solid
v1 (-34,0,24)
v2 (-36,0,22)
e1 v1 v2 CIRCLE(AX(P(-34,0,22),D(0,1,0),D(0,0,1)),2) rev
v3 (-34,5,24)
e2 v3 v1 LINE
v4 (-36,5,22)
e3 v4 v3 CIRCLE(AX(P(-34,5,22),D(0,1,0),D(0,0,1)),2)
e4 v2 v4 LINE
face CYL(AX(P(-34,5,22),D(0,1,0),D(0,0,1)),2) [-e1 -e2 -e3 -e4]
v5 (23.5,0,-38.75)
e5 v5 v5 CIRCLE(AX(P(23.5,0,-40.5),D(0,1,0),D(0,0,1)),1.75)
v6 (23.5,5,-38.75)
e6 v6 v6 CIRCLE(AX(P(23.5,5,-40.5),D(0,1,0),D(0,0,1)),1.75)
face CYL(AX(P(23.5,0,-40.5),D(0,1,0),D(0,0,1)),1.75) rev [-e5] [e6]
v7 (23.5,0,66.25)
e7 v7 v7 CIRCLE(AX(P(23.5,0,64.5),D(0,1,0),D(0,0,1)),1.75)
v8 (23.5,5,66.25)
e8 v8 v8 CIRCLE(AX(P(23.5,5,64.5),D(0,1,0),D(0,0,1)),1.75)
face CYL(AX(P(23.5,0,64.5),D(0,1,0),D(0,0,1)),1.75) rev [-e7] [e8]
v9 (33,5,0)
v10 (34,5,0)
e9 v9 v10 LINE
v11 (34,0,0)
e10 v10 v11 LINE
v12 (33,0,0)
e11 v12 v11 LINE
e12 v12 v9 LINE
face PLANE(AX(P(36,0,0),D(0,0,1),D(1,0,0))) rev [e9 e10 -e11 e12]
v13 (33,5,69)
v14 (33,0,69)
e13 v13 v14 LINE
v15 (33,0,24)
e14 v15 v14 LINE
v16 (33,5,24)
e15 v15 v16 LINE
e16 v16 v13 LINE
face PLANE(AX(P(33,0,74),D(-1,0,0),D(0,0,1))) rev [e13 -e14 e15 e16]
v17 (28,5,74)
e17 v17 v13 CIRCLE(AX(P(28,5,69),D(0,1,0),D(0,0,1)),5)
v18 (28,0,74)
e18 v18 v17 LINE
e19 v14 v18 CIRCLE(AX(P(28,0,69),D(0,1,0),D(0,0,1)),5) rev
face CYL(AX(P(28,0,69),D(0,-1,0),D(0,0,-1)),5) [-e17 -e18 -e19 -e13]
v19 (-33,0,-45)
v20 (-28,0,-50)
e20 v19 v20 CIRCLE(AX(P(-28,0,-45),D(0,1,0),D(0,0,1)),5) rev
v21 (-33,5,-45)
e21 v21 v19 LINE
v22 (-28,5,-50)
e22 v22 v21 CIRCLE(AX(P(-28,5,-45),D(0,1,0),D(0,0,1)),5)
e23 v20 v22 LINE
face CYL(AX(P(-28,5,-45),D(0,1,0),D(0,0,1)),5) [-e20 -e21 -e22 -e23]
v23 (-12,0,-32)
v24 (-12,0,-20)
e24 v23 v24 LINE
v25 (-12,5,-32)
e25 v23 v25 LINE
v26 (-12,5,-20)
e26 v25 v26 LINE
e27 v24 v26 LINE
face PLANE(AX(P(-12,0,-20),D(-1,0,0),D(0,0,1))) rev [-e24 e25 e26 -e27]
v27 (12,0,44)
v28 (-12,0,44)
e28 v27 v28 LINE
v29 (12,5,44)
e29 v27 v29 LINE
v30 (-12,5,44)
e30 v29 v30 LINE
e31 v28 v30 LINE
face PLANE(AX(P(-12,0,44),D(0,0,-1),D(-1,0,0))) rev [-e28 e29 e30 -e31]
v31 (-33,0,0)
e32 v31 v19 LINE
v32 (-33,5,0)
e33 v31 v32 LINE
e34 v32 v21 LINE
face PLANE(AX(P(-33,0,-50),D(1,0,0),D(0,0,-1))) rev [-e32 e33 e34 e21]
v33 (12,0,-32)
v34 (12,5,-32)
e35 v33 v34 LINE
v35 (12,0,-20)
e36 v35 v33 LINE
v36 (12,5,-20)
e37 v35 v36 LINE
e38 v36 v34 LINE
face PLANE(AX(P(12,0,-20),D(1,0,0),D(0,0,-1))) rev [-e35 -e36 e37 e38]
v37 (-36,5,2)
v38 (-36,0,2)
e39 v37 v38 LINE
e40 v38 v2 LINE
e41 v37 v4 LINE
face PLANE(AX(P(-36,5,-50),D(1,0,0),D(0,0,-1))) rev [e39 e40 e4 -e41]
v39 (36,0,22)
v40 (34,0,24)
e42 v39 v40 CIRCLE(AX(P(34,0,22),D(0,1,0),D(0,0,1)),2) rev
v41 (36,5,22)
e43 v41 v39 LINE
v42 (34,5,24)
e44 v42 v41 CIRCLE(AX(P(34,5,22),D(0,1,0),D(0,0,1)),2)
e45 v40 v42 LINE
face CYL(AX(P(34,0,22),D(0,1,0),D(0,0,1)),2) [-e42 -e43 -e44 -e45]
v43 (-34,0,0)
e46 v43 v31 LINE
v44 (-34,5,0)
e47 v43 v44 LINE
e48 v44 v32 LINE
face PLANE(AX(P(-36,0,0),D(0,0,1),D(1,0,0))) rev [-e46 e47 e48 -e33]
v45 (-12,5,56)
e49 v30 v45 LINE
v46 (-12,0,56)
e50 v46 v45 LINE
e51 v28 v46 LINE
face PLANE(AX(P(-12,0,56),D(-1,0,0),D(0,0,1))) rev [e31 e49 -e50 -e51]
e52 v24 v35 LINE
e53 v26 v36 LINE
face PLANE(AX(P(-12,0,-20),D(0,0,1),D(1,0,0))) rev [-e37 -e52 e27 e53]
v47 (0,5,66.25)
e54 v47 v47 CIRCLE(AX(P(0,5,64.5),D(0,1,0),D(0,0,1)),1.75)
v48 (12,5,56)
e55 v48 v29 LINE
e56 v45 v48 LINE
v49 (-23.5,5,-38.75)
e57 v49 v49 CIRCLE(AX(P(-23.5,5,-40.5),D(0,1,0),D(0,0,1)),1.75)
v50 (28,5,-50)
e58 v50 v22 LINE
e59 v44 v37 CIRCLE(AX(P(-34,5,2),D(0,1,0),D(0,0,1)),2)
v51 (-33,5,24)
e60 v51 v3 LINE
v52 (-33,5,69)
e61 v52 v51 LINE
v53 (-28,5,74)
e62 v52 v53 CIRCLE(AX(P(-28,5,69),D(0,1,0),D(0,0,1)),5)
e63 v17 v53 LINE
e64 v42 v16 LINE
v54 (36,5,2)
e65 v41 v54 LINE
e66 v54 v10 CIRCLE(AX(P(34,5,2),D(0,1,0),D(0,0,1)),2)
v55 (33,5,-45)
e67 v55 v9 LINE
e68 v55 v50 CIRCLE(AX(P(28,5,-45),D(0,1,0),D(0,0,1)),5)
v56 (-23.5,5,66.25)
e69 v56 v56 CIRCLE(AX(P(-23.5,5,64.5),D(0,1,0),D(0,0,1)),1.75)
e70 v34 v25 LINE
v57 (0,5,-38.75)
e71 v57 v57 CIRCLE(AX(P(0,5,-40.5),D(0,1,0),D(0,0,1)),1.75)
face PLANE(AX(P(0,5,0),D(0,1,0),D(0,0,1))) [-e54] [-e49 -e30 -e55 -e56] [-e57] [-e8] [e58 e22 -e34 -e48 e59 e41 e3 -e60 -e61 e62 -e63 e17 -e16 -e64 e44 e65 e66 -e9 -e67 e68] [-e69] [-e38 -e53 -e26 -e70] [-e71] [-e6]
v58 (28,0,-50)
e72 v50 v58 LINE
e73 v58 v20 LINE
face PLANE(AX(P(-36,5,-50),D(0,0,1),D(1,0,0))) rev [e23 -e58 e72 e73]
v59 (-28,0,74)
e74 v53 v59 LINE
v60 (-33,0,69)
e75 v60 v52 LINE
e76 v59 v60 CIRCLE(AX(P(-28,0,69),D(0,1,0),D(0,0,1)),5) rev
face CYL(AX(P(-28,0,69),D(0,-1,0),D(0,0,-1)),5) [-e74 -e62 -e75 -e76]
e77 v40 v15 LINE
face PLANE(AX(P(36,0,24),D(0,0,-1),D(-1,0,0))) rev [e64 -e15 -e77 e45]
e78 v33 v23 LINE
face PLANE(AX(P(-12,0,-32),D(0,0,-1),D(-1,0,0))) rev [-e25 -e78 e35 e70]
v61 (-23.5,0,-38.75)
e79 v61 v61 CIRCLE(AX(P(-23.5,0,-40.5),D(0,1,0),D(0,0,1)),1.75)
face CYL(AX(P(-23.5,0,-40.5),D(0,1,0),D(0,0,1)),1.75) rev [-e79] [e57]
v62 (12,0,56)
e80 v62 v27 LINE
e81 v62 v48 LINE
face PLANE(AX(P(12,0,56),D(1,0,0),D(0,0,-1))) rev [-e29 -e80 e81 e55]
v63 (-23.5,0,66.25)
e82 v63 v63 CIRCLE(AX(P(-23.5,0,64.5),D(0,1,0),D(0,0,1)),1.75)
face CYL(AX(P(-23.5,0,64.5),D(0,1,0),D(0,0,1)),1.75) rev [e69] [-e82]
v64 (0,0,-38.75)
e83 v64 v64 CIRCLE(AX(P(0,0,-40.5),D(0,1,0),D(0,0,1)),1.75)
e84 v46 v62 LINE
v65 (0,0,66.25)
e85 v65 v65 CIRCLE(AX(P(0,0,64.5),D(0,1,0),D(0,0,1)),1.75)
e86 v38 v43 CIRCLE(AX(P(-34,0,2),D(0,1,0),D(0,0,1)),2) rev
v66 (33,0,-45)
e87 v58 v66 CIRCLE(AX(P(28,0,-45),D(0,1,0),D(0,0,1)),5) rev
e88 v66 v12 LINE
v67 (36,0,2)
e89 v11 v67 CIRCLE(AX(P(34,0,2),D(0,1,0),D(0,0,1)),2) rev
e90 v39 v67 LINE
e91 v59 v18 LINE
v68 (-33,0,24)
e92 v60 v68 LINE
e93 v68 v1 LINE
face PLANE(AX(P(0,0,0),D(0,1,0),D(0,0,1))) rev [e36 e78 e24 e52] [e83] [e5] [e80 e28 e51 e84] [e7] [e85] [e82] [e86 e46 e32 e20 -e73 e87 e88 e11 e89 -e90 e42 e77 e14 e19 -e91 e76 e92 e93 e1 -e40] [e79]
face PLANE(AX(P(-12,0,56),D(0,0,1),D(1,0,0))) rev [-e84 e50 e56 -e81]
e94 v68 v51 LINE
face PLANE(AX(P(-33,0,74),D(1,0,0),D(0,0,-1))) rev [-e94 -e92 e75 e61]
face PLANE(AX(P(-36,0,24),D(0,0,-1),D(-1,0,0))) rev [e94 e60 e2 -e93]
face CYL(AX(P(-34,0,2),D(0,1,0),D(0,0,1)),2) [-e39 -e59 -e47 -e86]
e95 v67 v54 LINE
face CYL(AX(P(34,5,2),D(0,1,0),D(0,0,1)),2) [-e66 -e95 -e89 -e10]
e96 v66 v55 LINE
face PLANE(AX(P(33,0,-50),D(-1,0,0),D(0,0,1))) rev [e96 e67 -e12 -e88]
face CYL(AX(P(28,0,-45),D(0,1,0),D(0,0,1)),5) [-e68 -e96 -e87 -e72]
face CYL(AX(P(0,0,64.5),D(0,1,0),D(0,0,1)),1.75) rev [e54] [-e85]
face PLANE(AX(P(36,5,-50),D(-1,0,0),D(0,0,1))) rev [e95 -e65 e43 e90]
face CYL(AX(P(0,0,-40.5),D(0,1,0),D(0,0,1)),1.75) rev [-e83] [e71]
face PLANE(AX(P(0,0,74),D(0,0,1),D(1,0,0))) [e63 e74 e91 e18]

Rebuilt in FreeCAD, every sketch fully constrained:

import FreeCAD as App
import Part
import Sketcher
from FreeCAD import Vector


def edges_at(feature, points):
    """Names of the edges that pass closest to the given points."""
    edges = feature.Shape.Edges
    near = lambda p: min(range(len(edges)), key=lambda i: edges[i].distToShape(Part.Vertex(*p))[0])
    return sorted({f"Edge{near(p) + 1}" for p in points})

doc = App.newDocument("Part")
body = doc.addObject("PartDesign::Body", "Body")

# Sketch on XZ plane
sketch1 = body.newObject("Sketcher::SketchObject", "Sketch")
sketch1.AttachmentSupport = (doc.getObject("XZ_Plane"), [""])
sketch1.MapMode = "FlatFace"
sketch1.addGeometry([
    Part.LineSegment(Vector(-36, -50, 0), Vector(-36, 50, 0)),
    Part.LineSegment(Vector(-36, 50, 0), Vector(36, 50, 0)),
    Part.LineSegment(Vector(36, 50, 0), Vector(36, -50, 0)),
    Part.LineSegment(Vector(36, -50, 0), Vector(-36, -50, 0)),
], False)
sketch1.addConstraint([
    Sketcher.Constraint("Coincident", 0, 2, 1, 1),
    Sketcher.Constraint("Coincident", 1, 2, 2, 1),
    Sketcher.Constraint("Coincident", 2, 2, 3, 1),
    Sketcher.Constraint("Coincident", 3, 2, 0, 1),
    Sketcher.Constraint("Vertical", 0),
    Sketcher.Constraint("Horizontal", 1),
    Sketcher.Constraint("Vertical", 2),
    Sketcher.Constraint("Horizontal", 3),
    Sketcher.Constraint("Symmetric", 0, 2, 2, 2, -1, 1),
    Sketcher.Constraint("DistanceX", 1, 1, 1, 2, 72.0),
    Sketcher.Constraint("DistanceY", 0, 1, 0, 2, 100.0),
])
pad1 = body.newObject("PartDesign::Pad", "Pad")
pad1.Profile = sketch1
pad1.Length = 5
pad1.Reversed = True

# Sketch on XY plane
sketch2 = body.newObject("Sketcher::SketchObject", "Sketch001")
sketch2.AttachmentSupport = (doc.getObject("XY_Plane"), [""])
sketch2.MapMode = "FlatFace"
sketch2.AttachmentOffset = App.Placement(Vector(0, 0, 50), App.Rotation())
sketch2.addGeometry([
    Part.LineSegment(Vector(-36, 5, 0), Vector(-36, 0, 0)),
    Part.LineSegment(Vector(-36, 0, 0), Vector(36, 0, 0)),
    Part.LineSegment(Vector(36, 0, 0), Vector(36, 5, 0)),
    Part.LineSegment(Vector(36, 5, 0), Vector(-36, 5, 0)),
], False)
sketch2.addConstraint([
    Sketcher.Constraint("Coincident", 0, 2, 1, 1),
    Sketcher.Constraint("Coincident", 1, 2, 2, 1),
    Sketcher.Constraint("Coincident", 2, 2, 3, 1),
    Sketcher.Constraint("Coincident", 3, 2, 0, 1),
    Sketcher.Constraint("Vertical", 0),
    Sketcher.Constraint("Horizontal", 1),
    Sketcher.Constraint("Vertical", 2),
    Sketcher.Constraint("Horizontal", 3),
    Sketcher.Constraint("Symmetric", 0, 2, 1, 2, -1, 1),
    Sketcher.Constraint("DistanceX", 1, 1, 1, 2, 72.0),
    Sketcher.Constraint("DistanceY", 0, 2, 0, 1, 5.0),
])
pad2 = body.newObject("PartDesign::Pad", "Pad001")
pad2.Profile = sketch2
pad2.Length = 24

# Sketch on XZ plane
sketch3 = body.newObject("Sketcher::SketchObject", "Sketch002")
sketch3.AttachmentSupport = (doc.getObject("XZ_Plane"), [""])
sketch3.MapMode = "FlatFace"
sketch3.AttachmentOffset = App.Placement(Vector(0, 0, -5), App.Rotation())
sketch3.addGeometry([
    Part.LineSegment(Vector(-36, -50, 0), Vector(-36, 0, 0)),  # 0
    Part.LineSegment(Vector(-36, 0, 0), Vector(-33, 0, 0)),  # 1
    Part.LineSegment(Vector(-33, 0, 0), Vector(-33, -50, 0)),  # 2
    Part.LineSegment(Vector(-33, -50, 0), Vector(-36, -50, 0)),  # 3
    Part.LineSegment(Vector(33, -50, 0), Vector(33, 0, 0)),  # 4
    Part.LineSegment(Vector(33, 0, 0), Vector(36, 0, 0)),  # 5
    Part.LineSegment(Vector(36, 0, 0), Vector(36, -50, 0)),  # 6
    Part.LineSegment(Vector(36, -50, 0), Vector(33, -50, 0)),  # 7
    Part.LineSegment(Vector(-36, 24, 0), Vector(-36, 74, 0)),  # 8
    Part.LineSegment(Vector(-36, 74, 0), Vector(-33, 74, 0)),  # 9
    Part.LineSegment(Vector(-33, 74, 0), Vector(-33, 24, 0)),  # 10
    Part.LineSegment(Vector(-33, 24, 0), Vector(-36, 24, 0)),  # 11
    Part.LineSegment(Vector(33, 24, 0), Vector(33, 74, 0)),  # 12
    Part.LineSegment(Vector(33, 74, 0), Vector(36, 74, 0)),  # 13
    Part.LineSegment(Vector(36, 74, 0), Vector(36, 24, 0)),  # 14
    Part.LineSegment(Vector(36, 24, 0), Vector(33, 24, 0)),  # 15
], False)
sketch3.addConstraint([
    Sketcher.Constraint("Coincident", 0, 2, 1, 1),
    Sketcher.Constraint("Coincident", 1, 2, 2, 1),
    Sketcher.Constraint("Coincident", 2, 2, 3, 1),
    Sketcher.Constraint("Coincident", 3, 2, 0, 1),
    Sketcher.Constraint("Coincident", 4, 2, 5, 1),
    Sketcher.Constraint("Coincident", 5, 2, 6, 1),
    Sketcher.Constraint("Coincident", 6, 2, 7, 1),
    Sketcher.Constraint("Coincident", 7, 2, 4, 1),
    Sketcher.Constraint("Coincident", 8, 2, 9, 1),
    Sketcher.Constraint("Coincident", 9, 2, 10, 1),
    Sketcher.Constraint("Coincident", 10, 2, 11, 1),
    Sketcher.Constraint("Coincident", 11, 2, 8, 1),
    Sketcher.Constraint("Coincident", 12, 2, 13, 1),
    Sketcher.Constraint("Coincident", 13, 2, 14, 1),
    Sketcher.Constraint("Coincident", 14, 2, 15, 1),
    Sketcher.Constraint("Coincident", 15, 2, 12, 1),
    Sketcher.Constraint("Vertical", 0),
    Sketcher.Constraint("Horizontal", 1),
    Sketcher.Constraint("Vertical", 2),
    Sketcher.Constraint("Horizontal", 3),
    Sketcher.Constraint("Vertical", 4),
    Sketcher.Constraint("Horizontal", 5),
    Sketcher.Constraint("Vertical", 6),
    Sketcher.Constraint("Horizontal", 7),
    Sketcher.Constraint("Vertical", 8),
    Sketcher.Constraint("Horizontal", 9),
    Sketcher.Constraint("Vertical", 10),
    Sketcher.Constraint("Horizontal", 11),
    Sketcher.Constraint("Vertical", 12),
    Sketcher.Constraint("Horizontal", 13),
    Sketcher.Constraint("Vertical", 14),
    Sketcher.Constraint("Horizontal", 15),
    Sketcher.Constraint("Symmetric", 1, 2, 4, 2, -1, 1),
    Sketcher.Constraint("Symmetric", 0, 2, 5, 2, -2),
    Sketcher.Constraint("Symmetric", 9, 2, 12, 2, -2),
    Sketcher.Constraint("Symmetric", 11, 2, 14, 2, -2),
    Sketcher.Constraint("Horizontal", 3, 2, 6, 2),
    Sketcher.Constraint("Vertical", 3, 2, 8, 2),
    Sketcher.Constraint("Vertical", 2, 2, 9, 2),
    Sketcher.Constraint("Equal", 6, 8),
    Sketcher.Constraint("DistanceX", 1, 1, 1, 2, 3.0),
    Sketcher.Constraint("DistanceY", 0, 1, 0, 2, 50.0),
    Sketcher.Constraint("DistanceX", 0, 2, -1, 1, 36.0),
    Sketcher.Constraint("DistanceY", -1, 1, 8, 2, 74.0),
])
pocket1 = body.newObject("PartDesign::Pocket", "Pocket")
pocket1.Profile = sketch3
pocket1.Type = "ThroughAll"
pocket1.Midplane = True

# Sketch on XZ plane
sketch4 = body.newObject("Sketcher::SketchObject", "Sketch003")
sketch4.AttachmentSupport = (doc.getObject("XZ_Plane"), [""])
sketch4.MapMode = "FlatFace"
sketch4.AttachmentOffset = App.Placement(Vector(0, 0, -5), App.Rotation())
sketch4.addGeometry(Part.Circle(Vector(-23.5, -40.5, 0), Vector(0, 0, 1), 1.75), False)
sketch4.addConstraint([
    Sketcher.Constraint("Diameter", 0, 3.5),
    Sketcher.Constraint("DistanceX", 0, 3, -1, 1, 23.5),
    Sketcher.Constraint("DistanceY", 0, 3, -1, 1, 40.5),
])
pocket2 = body.newObject("PartDesign::Pocket", "Pocket001")
pocket2.Profile = sketch4
pocket2.Type = "ThroughAll"
pocket2.Midplane = True

# Sketch on XZ plane
sketch5 = body.newObject("Sketcher::SketchObject", "Sketch004")
sketch5.AttachmentSupport = (doc.getObject("XZ_Plane"), [""])
sketch5.MapMode = "FlatFace"
sketch5.AttachmentOffset = App.Placement(Vector(0, 0, -5), App.Rotation())
sketch5.addGeometry([
    Part.Circle(Vector(23.5, -40.5, 0), Vector(0, 0, 1), 1.75),
    Part.Circle(Vector(-23.5, 64.5, 0), Vector(0, 0, 1), 1.75),
    Part.Circle(Vector(23.5, 64.5, 0), Vector(0, 0, 1), 1.75),
], False)
sketch5.addConstraint([
    Sketcher.Constraint("Equal", 0, 1),
    Sketcher.Constraint("Equal", 1, 2),
    Sketcher.Constraint("Symmetric", 1, 3, 2, 3, -2),
    Sketcher.Constraint("Vertical", 0, 3, 2, 3),
    Sketcher.Constraint("Diameter", 0, 3.5),
    Sketcher.Constraint("DistanceX", 1, 3, 0, 3, 47.0),
    Sketcher.Constraint("DistanceY", 0, 3, 1, 3, 105.0),
    Sketcher.Constraint("DistanceY", 0, 3, -1, 1, 40.5),
])
pocket3 = body.newObject("PartDesign::Pocket", "Pocket002")
pocket3.Profile = sketch5
pocket3.Type = "ThroughAll"
pocket3.Midplane = True

# Sketch on XZ plane
sketch6 = body.newObject("Sketcher::SketchObject", "Sketch005")
sketch6.AttachmentSupport = (doc.getObject("XZ_Plane"), [""])
sketch6.MapMode = "FlatFace"
sketch6.AttachmentOffset = App.Placement(Vector(0, 0, -5), App.Rotation())
sketch6.addGeometry([
    Part.LineSegment(Vector(-12, 44, 0), Vector(-12, 56, 0)),  # 0
    Part.LineSegment(Vector(-12, 56, 0), Vector(12, 56, 0)),  # 1
    Part.LineSegment(Vector(12, 56, 0), Vector(12, 44, 0)),  # 2
    Part.LineSegment(Vector(12, 44, 0), Vector(-12, 44, 0)),  # 3
    Part.LineSegment(Vector(-12, -32, 0), Vector(-12, -20, 0)),  # 4
    Part.LineSegment(Vector(-12, -20, 0), Vector(12, -20, 0)),  # 5
    Part.LineSegment(Vector(12, -20, 0), Vector(12, -32, 0)),  # 6
    Part.LineSegment(Vector(12, -32, 0), Vector(-12, -32, 0)),  # 7
], False)
sketch6.addConstraint([
    Sketcher.Constraint("Coincident", 0, 2, 1, 1),
    Sketcher.Constraint("Coincident", 1, 2, 2, 1),
    Sketcher.Constraint("Coincident", 2, 2, 3, 1),
    Sketcher.Constraint("Coincident", 3, 2, 0, 1),
    Sketcher.Constraint("Coincident", 4, 2, 5, 1),
    Sketcher.Constraint("Coincident", 5, 2, 6, 1),
    Sketcher.Constraint("Coincident", 6, 2, 7, 1),
    Sketcher.Constraint("Coincident", 7, 2, 4, 1),
    Sketcher.Constraint("Vertical", 0),
    Sketcher.Constraint("Horizontal", 1),
    Sketcher.Constraint("Vertical", 2),
    Sketcher.Constraint("Horizontal", 3),
    Sketcher.Constraint("Vertical", 4),
    Sketcher.Constraint("Horizontal", 5),
    Sketcher.Constraint("Vertical", 6),
    Sketcher.Constraint("Horizontal", 7),
    Sketcher.Constraint("Vertical", 3, 2, 4, 2),
    Sketcher.Constraint("Vertical", 2, 2, 5, 2),
    Sketcher.Constraint("Equal", 2, 4),
    Sketcher.Constraint("DistanceX", 1, 1, 1, 2, 24.0),
    Sketcher.Constraint("DistanceY", 0, 1, 0, 2, 12.0),
    Sketcher.Constraint("DistanceX", 0, 2, -1, 1, 12.0),
    Sketcher.Constraint("DistanceY", -1, 1, 0, 2, 56.0),
    Sketcher.Constraint("DistanceY", 4, 2, -1, 1, 20.0),
])
pocket4 = body.newObject("PartDesign::Pocket", "Pocket003")
pocket4.Profile = sketch6
pocket4.Type = "ThroughAll"
pocket4.Midplane = True
doc.recompute()

fillet = body.newObject("PartDesign::Fillet", "Fillet")
fillet.Base = (pocket4, edges_at(pocket4, [
    (33, 2.5, -50),
    (-33, 2.5, 74),
    (33, 2.5, 74),
    (-33, 2.5, -50),
]))
fillet.Radius = 5
doc.recompute()

fillet2 = body.newObject("PartDesign::Fillet", "Fillet001")
fillet2.Base = (fillet, edges_at(fillet, [
    (36, 2.5, 0),
    (-36, 2.5, 24),
    (36, 2.5, 24),
    (-36, 2.5, 0),
]))
fillet2.Radius = 2

# Sketch on XZ plane
sketch7 = body.newObject("Sketcher::SketchObject", "Sketch006")
sketch7.AttachmentSupport = (doc.getObject("XZ_Plane"), [""])
sketch7.MapMode = "FlatFace"
sketch7.AttachmentOffset = App.Placement(Vector(0, 0, -5), App.Rotation())
sketch7.addGeometry([
    Part.Circle(Vector(0, -40.5, 0), Vector(0, 0, 1), 1.75),
    Part.Circle(Vector(0, 64.5, 0), Vector(0, 0, 1), 1.75),
], False)
sketch7.addConstraint([
    Sketcher.Constraint("Equal", 0, 1),
    Sketcher.Constraint("PointOnObject", 0, 3, -2),
    Sketcher.Constraint("PointOnObject", 1, 3, -2),
    Sketcher.Constraint("Diameter", 0, 3.5),
    Sketcher.Constraint("DistanceY", 0, 3, 1, 3, 105.0),
    Sketcher.Constraint("DistanceY", 0, 3, -1, 1, 40.5),
])
pocket5 = body.newObject("PartDesign::Pocket", "Pocket004")
pocket5.Profile = sketch7
pocket5.Type = "ThroughAll"
pocket5.Midplane = True

doc.recompute()
